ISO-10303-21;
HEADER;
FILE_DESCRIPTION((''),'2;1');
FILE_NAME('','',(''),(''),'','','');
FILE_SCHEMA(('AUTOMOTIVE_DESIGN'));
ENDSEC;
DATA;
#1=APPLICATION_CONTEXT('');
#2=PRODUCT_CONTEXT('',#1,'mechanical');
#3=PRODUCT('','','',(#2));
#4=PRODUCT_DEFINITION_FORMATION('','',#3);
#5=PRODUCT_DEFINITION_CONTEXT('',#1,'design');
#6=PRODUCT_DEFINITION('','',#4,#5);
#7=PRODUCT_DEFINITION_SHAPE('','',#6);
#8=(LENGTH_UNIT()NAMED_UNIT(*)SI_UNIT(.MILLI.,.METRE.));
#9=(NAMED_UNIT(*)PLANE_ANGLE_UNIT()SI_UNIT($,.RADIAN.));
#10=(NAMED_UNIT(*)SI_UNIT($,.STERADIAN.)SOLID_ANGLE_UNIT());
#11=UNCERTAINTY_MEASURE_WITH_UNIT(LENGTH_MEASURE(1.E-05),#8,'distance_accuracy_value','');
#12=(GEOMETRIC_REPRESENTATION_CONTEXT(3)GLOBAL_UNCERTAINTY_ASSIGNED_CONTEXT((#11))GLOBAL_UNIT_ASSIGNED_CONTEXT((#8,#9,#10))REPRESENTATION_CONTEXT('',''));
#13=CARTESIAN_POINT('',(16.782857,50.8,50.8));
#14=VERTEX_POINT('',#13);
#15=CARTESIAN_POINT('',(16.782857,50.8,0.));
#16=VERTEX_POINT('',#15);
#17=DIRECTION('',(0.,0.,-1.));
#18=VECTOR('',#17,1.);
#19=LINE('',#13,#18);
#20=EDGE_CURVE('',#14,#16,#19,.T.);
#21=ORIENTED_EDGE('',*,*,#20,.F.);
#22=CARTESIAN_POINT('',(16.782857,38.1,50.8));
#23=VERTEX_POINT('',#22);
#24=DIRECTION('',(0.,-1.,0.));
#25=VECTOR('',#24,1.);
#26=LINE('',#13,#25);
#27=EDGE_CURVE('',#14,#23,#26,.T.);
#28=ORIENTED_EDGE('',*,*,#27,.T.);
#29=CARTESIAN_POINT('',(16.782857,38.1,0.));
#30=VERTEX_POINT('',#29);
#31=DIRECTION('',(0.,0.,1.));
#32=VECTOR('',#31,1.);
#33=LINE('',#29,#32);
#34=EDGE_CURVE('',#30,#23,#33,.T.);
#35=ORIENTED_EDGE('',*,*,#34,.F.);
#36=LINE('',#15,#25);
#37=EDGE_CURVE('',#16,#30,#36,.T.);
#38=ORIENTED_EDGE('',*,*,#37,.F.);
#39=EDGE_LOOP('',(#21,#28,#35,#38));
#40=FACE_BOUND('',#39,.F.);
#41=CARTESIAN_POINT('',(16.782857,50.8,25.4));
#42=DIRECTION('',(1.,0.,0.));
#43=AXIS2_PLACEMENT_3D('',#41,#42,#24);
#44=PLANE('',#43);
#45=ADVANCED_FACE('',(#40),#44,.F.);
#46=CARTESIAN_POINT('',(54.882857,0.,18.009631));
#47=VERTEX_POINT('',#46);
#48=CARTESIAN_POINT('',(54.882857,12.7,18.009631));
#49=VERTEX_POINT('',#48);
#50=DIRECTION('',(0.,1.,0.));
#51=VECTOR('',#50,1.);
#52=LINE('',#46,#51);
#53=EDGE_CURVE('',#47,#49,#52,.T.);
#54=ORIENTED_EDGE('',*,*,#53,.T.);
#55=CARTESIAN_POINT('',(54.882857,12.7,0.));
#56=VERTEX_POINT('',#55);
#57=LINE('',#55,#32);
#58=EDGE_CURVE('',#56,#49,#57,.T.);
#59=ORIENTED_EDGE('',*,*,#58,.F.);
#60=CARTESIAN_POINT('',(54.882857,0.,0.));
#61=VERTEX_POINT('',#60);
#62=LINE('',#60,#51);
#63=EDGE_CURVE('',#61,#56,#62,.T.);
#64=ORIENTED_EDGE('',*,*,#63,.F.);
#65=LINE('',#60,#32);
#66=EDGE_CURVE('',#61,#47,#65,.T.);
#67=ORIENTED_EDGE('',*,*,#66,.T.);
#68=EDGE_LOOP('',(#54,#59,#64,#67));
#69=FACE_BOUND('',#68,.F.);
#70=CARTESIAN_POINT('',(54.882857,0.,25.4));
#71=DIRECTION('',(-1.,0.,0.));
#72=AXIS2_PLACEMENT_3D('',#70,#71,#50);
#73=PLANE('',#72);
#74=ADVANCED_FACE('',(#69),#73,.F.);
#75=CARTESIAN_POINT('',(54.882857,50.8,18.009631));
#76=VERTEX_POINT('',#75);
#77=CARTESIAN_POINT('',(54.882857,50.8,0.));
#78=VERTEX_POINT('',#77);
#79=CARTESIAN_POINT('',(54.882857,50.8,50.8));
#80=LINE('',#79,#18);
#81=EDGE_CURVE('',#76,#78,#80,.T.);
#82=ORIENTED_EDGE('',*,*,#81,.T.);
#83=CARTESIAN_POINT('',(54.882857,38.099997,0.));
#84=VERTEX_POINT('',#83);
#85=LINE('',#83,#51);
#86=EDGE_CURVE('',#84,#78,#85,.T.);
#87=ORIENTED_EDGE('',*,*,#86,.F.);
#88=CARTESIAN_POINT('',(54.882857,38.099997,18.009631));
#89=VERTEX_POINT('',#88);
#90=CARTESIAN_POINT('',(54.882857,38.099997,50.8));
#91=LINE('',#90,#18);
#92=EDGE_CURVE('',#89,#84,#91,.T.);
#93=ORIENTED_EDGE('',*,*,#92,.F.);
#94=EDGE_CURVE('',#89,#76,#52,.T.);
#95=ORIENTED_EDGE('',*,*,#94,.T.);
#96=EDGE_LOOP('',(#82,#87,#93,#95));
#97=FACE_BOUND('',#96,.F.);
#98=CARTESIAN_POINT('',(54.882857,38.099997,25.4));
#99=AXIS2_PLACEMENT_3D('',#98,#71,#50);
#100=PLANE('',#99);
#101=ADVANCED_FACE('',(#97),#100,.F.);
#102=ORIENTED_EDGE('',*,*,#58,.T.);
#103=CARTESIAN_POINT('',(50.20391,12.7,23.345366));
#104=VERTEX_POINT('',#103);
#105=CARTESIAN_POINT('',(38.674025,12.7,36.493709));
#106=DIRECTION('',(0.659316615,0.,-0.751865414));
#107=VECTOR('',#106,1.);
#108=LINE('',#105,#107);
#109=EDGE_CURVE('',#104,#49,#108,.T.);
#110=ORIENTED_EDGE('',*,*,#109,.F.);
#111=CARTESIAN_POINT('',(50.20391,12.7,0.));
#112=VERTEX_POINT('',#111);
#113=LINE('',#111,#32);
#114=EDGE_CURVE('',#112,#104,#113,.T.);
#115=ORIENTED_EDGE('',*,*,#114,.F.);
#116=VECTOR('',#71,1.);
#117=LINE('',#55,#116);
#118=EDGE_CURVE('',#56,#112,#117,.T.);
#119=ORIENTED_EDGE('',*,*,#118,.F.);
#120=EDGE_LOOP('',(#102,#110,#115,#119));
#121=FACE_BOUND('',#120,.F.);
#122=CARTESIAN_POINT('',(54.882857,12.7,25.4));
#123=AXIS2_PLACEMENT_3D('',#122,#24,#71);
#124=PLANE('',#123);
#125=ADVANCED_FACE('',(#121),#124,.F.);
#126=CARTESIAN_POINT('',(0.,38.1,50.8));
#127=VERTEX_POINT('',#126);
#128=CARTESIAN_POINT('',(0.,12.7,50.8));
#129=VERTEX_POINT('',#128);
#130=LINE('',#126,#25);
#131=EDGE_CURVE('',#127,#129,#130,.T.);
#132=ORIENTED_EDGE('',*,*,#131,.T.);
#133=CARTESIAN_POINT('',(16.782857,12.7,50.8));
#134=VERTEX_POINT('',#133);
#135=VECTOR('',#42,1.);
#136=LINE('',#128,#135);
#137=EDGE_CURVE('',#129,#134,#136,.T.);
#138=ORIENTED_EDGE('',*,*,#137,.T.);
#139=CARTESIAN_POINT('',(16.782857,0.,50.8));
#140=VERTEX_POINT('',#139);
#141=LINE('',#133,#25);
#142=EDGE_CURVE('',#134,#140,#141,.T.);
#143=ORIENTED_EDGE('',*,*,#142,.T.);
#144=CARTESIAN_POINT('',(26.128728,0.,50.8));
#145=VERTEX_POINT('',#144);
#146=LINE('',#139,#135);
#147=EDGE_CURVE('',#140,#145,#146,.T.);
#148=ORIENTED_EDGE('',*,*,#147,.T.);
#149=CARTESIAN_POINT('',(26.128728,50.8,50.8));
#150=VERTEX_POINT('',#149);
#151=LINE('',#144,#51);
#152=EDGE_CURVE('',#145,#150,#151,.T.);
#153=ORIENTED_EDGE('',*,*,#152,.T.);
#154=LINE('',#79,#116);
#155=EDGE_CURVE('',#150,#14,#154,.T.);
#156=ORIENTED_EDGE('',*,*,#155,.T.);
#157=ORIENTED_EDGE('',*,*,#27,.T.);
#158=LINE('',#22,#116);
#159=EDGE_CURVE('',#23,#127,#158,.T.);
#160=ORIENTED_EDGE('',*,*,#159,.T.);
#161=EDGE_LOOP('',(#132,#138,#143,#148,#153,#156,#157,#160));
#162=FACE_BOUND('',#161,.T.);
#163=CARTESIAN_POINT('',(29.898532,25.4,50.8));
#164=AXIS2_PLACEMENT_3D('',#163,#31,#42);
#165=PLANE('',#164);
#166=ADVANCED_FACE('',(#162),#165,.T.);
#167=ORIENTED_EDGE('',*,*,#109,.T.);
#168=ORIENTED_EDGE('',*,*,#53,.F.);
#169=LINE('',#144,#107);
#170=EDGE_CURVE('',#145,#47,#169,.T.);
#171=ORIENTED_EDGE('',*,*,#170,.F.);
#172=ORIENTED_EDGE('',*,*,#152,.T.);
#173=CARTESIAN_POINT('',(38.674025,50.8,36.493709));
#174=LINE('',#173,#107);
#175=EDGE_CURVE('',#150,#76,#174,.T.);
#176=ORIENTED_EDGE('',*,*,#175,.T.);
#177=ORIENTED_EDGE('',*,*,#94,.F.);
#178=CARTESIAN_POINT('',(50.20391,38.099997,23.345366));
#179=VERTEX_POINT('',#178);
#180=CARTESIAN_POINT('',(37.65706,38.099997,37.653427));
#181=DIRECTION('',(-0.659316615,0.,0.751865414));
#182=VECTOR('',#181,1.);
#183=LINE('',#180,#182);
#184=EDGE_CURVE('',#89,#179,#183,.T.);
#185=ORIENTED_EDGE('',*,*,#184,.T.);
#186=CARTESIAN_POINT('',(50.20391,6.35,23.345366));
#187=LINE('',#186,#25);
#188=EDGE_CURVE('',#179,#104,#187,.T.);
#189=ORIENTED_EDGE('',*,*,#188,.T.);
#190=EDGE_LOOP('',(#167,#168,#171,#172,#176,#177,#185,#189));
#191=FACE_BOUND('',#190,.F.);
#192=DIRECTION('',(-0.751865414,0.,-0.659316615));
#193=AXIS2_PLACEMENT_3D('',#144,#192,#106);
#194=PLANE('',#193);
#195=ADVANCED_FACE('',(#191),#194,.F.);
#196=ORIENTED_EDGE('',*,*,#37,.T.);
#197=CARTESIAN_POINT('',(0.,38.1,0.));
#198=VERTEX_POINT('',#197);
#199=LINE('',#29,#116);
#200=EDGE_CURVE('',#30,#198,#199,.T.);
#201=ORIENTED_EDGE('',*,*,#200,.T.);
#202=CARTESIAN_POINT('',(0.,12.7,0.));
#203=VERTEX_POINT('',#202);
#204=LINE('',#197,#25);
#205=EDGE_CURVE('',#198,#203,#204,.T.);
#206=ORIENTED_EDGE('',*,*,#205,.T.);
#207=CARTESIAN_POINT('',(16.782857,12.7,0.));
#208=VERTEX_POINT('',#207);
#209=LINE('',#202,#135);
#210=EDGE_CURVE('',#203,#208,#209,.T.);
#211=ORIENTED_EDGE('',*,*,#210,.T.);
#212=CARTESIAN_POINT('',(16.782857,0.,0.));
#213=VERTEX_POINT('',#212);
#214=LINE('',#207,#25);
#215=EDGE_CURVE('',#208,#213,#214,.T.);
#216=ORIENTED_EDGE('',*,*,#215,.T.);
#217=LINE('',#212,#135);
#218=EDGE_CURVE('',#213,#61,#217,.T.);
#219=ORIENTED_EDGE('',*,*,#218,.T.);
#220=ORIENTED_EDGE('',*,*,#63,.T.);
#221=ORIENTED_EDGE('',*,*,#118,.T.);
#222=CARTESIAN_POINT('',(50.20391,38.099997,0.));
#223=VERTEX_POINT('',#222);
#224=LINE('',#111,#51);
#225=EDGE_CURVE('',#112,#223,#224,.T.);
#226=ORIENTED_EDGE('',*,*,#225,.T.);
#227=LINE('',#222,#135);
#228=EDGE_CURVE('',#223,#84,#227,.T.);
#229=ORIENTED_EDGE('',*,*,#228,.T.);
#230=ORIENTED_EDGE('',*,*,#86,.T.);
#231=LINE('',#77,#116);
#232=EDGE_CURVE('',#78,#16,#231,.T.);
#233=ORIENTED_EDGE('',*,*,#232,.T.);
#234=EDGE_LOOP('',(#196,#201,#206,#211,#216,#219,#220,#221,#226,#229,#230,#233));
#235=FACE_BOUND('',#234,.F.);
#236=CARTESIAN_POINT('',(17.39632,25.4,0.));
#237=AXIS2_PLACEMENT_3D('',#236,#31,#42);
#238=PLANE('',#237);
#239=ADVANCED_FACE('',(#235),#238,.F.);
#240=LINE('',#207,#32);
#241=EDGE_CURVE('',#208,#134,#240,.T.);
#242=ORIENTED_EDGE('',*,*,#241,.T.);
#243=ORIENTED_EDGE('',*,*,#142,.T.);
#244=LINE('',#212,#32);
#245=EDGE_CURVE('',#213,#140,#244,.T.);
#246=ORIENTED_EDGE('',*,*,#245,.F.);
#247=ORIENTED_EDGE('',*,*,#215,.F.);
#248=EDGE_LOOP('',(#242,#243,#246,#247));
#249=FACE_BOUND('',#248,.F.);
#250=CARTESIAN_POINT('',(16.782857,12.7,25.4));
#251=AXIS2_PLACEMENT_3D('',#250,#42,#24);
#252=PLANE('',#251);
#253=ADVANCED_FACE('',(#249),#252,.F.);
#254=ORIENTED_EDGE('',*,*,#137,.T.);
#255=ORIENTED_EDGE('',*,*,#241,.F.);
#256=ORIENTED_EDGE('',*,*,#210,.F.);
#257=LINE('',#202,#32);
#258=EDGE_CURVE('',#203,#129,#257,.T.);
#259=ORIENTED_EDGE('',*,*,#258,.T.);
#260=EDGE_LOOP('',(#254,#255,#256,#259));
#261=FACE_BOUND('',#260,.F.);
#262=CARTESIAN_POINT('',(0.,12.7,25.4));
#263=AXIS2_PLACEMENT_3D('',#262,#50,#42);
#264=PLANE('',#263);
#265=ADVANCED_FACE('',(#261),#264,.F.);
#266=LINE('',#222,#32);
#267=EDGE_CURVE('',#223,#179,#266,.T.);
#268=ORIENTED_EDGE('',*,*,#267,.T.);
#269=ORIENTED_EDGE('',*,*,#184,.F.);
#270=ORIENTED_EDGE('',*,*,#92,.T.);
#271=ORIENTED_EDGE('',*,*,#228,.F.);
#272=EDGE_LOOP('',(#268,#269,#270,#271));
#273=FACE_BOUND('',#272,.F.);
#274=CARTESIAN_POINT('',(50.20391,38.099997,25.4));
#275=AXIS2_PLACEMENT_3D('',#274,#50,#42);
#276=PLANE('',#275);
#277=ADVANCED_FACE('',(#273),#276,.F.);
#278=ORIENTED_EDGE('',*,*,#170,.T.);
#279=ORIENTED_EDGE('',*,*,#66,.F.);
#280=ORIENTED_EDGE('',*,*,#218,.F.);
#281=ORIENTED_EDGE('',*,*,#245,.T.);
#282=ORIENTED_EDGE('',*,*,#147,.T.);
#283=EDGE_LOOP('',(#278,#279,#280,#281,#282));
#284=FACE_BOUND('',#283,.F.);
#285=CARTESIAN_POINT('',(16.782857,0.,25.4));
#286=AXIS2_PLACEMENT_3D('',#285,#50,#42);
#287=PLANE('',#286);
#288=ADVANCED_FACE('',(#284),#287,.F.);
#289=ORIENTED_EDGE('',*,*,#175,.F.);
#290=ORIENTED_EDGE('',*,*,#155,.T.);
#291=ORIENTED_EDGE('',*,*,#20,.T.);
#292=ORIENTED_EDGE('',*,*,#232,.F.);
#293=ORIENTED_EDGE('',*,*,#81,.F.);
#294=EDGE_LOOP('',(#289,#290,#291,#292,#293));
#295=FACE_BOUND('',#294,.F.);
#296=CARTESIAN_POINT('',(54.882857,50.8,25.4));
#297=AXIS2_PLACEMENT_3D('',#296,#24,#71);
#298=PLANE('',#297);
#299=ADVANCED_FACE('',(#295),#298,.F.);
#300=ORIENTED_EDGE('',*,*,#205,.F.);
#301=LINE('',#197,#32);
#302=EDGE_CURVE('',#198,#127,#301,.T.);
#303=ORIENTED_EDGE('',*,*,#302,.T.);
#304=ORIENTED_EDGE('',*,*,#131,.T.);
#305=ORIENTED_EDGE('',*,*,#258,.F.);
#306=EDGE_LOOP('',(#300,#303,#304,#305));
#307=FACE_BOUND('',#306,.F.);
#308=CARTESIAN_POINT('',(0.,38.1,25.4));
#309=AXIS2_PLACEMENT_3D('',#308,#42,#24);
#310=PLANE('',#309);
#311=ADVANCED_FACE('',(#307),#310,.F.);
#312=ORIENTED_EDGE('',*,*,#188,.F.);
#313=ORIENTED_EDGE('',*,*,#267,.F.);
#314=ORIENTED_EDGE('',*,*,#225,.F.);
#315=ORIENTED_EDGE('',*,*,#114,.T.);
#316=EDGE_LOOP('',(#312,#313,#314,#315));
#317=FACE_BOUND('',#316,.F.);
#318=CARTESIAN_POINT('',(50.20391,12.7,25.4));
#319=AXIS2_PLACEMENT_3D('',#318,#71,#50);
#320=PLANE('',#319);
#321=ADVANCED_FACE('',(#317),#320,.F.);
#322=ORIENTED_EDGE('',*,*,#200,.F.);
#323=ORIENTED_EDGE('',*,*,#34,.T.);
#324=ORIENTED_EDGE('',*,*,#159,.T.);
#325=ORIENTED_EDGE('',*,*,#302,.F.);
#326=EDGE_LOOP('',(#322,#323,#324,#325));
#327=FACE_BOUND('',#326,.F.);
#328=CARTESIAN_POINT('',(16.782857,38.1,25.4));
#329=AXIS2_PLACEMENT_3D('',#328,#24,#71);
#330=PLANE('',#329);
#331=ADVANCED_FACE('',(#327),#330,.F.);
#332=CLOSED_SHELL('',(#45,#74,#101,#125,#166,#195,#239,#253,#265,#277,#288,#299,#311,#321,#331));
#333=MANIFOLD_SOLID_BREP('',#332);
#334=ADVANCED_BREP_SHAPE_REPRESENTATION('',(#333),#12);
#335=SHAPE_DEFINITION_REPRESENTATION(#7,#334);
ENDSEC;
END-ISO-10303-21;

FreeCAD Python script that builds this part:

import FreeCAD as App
import Part
import Sketcher
from FreeCAD import Vector
Q = App.Units.Quantity


def add_polygon(sketch, points):
    """Adds a closed chain of lines whose ends are joined by coincident constraints."""
    first, n = sketch.GeometryCount, len(points)
    for a, b in zip(points, points[1:] + points[:1]):
        sketch.addGeometry(Part.LineSegment(App.Vector(*a, 0), App.Vector(*b, 0)), False)
    for i in range(n):
        sketch.addConstraint(Sketcher.Constraint("Coincident", first + i, 2, first + (i + 1) % n, 1))

doc = App.newDocument("Part")
body = doc.addObject("PartDesign::Body", "Body")

# Sketch on XY plane
sketch1 = doc.addObject("Sketcher::SketchObject", "Sketch")
body.addObject(sketch1)
sketch1.AttachmentSupport = (doc.XY_Plane, [""])
sketch1.MapMode = "FlatFace"
add_polygon(sketch1, [(16.8, 38.1), (0, 38.1), (0, 12.7), (16.8, 12.7), (16.8, 0), (54.9, 0), (54.9, 12.7), (50.2, 12.7), (50.2, 38.1), (54.9, 38.1), (54.9, 50.8), (16.8, 50.8)])  # lines 0-11
sketch1.addConstraint(Sketcher.Constraint("Horizontal", 0))
sketch1.addConstraint(Sketcher.Constraint("Vertical", 1))
sketch1.addConstraint(Sketcher.Constraint("Horizontal", 2))
sketch1.addConstraint(Sketcher.Constraint("Vertical", 3))
sketch1.addConstraint(Sketcher.Constraint("Horizontal", 4))
sketch1.addConstraint(Sketcher.Constraint("Vertical", 5))
sketch1.addConstraint(Sketcher.Constraint("Horizontal", 6))
sketch1.addConstraint(Sketcher.Constraint("Vertical", 7))
sketch1.addConstraint(Sketcher.Constraint("Horizontal", 8))
sketch1.addConstraint(Sketcher.Constraint("Vertical", 9))
sketch1.addConstraint(Sketcher.Constraint("Horizontal", 10))
sketch1.addConstraint(Sketcher.Constraint("Vertical", 11))
sketch1.addConstraint(Sketcher.Constraint("PointOnObject", 0, 2, -2))
sketch1.addConstraint(Sketcher.Constraint("PointOnObject", 3, 2, -1))
sketch1.addConstraint(Sketcher.Constraint("Horizontal", 2, 2, 5, 2))
sketch1.addConstraint(Sketcher.Constraint("Vertical", 5, 2, 8, 2))
sketch1.addConstraint(Sketcher.Constraint("Vertical", 3, 2, 10, 2))
sketch1.addConstraint(Sketcher.Constraint("Equal", 5, 11))
sketch1.addConstraint(Sketcher.Constraint("DistanceY", 1, 2, 1, 1, Q("1 in")))
sketch1.addConstraint(Sketcher.Constraint("DistanceY", 7, 1, 7, 2, Q("0.9999999 in")))
sketch1.addConstraint(Sketcher.Constraint("DistanceX", 4, 1, 4, 2, Q("1.5 in")))
sketch1.addConstraint(Sketcher.Constraint("DistanceY", 3, 2, 3, 1, Q("0.5 in")))
sketch1.addConstraint(Sketcher.Constraint("DistanceX", 0, 2, 0, 1, 16.782857))
sketch1.addConstraint(Sketcher.Constraint("DistanceX", 6, 2, 6, 1, 4.678947))
pad1 = doc.addObject("PartDesign::Pad", "Pad")
body.addObject(pad1)
pad1.Profile = sketch1
pad1.Length = Q("1 in")

# Sketch on XY plane
sketch2 = doc.addObject("Sketcher::SketchObject", "Sketch001")
body.addObject(sketch2)
sketch2.AttachmentSupport = (doc.XY_Plane, [""])
sketch2.MapMode = "FlatFace"
sketch2.AttachmentOffset = App.Placement(Vector(0, 0, 1 * 25.4), App.Rotation())
add_polygon(sketch2, [(16.8, 50.8), (16.8, 38.1), (0, 38.1), (0, 12.7), (16.8, 12.7), (16.8, 0), (54.9, 0), (54.9, 12.7), (50.2, 12.7), (50.2, 38.1), (54.9, 38.1), (54.9, 50.8)])  # lines 0-11
sketch2.addConstraint(Sketcher.Constraint("Vertical", 0))
sketch2.addConstraint(Sketcher.Constraint("Horizontal", 1))
sketch2.addConstraint(Sketcher.Constraint("Vertical", 2))
sketch2.addConstraint(Sketcher.Constraint("Horizontal", 3))
sketch2.addConstraint(Sketcher.Constraint("Vertical", 4))
sketch2.addConstraint(Sketcher.Constraint("Horizontal", 5))
sketch2.addConstraint(Sketcher.Constraint("Vertical", 6))
sketch2.addConstraint(Sketcher.Constraint("Horizontal", 7))
sketch2.addConstraint(Sketcher.Constraint("Vertical", 8))
sketch2.addConstraint(Sketcher.Constraint("Horizontal", 9))
sketch2.addConstraint(Sketcher.Constraint("Vertical", 10))
sketch2.addConstraint(Sketcher.Constraint("Horizontal", 11))
sketch2.addConstraint(Sketcher.Constraint("PointOnObject", 1, 2, -2))
sketch2.addConstraint(Sketcher.Constraint("PointOnObject", 4, 2, -1))
sketch2.addConstraint(Sketcher.Constraint("Horizontal", 3, 2, 6, 2))
sketch2.addConstraint(Sketcher.Constraint("Vertical", 0, 2, 3, 2))
sketch2.addConstraint(Sketcher.Constraint("Vertical", 6, 2, 9, 2))
sketch2.addConstraint(Sketcher.Constraint("Equal", 0, 4))
sketch2.addConstraint(Sketcher.Constraint("DistanceY", 2, 2, 2, 1, Q("1 in")))
sketch2.addConstraint(Sketcher.Constraint("DistanceY", 8, 1, 8, 2, Q("0.9999999 in")))
sketch2.addConstraint(Sketcher.Constraint("DistanceX", 5, 1, 5, 2, Q("1.5 in")))
sketch2.addConstraint(Sketcher.Constraint("DistanceY", 0, 2, 0, 1, Q("0.5 in")))
sketch2.addConstraint(Sketcher.Constraint("DistanceX", 1, 2, 1, 1, 16.782857))
sketch2.addConstraint(Sketcher.Constraint("DistanceX", 7, 2, 7, 1, 4.678947))
pad2 = doc.addObject("PartDesign::Pad", "Pad001")
body.addObject(pad2)
pad2.Profile = sketch2
pad2.Length = Q("1 in")

# Sketch on XZ plane
sketch3 = doc.addObject("Sketcher::SketchObject", "Sketch002")
body.addObject(sketch3)
sketch3.AttachmentSupport = (doc.XZ_Plane, [""])
sketch3.MapMode = "FlatFace"
add_polygon(sketch3, [(55, 51), (26, 51), (55, 18)])  # lines 0-2
sketch3.addConstraint(Sketcher.Constraint("Horizontal", 0))
sketch3.addConstraint(Sketcher.Constraint("Vertical", 2))
sketch3.addConstraint(Sketcher.Constraint("DistanceY", -1, 1, 0, 2, Q("2 in")))
sketch3.addConstraint(Sketcher.Constraint("DistanceX", 0, 2, 0, 1, 28.754129))
sketch3.addConstraint(Sketcher.Constraint("DistanceY", 2, 1, 2, 2, 32.790369))
sketch3.addConstraint(Sketcher.Constraint("DistanceX", -1, 1, 0, 2, 26.128728))
pocket1 = doc.addObject("PartDesign::Pocket", "Pocket")
body.addObject(pocket1)
pocket1.Profile = sketch3
pocket1.Length = Q("2.7 in")

doc.recompute()
